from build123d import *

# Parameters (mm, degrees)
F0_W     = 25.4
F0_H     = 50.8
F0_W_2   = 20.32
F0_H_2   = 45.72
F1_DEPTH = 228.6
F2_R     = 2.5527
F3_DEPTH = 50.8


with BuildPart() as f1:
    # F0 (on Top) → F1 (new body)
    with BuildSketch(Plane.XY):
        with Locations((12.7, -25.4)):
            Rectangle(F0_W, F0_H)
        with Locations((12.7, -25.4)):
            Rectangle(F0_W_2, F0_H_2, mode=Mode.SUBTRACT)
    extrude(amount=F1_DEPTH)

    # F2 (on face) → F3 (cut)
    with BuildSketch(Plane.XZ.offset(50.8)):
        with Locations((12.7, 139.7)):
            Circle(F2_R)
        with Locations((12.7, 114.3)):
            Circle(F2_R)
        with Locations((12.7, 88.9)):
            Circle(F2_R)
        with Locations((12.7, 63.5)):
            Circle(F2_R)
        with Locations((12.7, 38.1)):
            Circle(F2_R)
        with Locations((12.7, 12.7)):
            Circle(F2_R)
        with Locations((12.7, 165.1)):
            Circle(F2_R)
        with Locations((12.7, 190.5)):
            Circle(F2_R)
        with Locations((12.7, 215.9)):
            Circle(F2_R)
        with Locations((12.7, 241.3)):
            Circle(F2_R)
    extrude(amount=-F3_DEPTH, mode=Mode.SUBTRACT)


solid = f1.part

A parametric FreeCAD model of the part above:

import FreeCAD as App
import Part
import Sketcher
from FreeCAD import Vector
Q = App.Units.Quantity


def add_polygon(sketch, points):
    """Adds a closed chain of lines whose ends are joined by coincident constraints."""
    first, n = sketch.GeometryCount, len(points)
    for a, b in zip(points, points[1:] + points[:1]):
        sketch.addGeometry(Part.LineSegment(App.Vector(*a, 0), App.Vector(*b, 0)), False)
    for i in range(n):
        sketch.addConstraint(Sketcher.Constraint("Coincident", first + i, 2, first + (i + 1) % n, 1))

doc = App.newDocument("Part")
body = doc.addObject("PartDesign::Body", "Body")

sketch1 = body.newObject("Sketcher::SketchObject", "Sketch")
sketch1.AttachmentSupport = (doc.getObject("XY_Plane"), [""])
sketch1.MapMode = "FlatFace"
add_polygon(sketch1, [(0, 0), (0, -51), (25, -51), (25, 0)])
add_polygon(sketch1, [(23, -48), (3, -48), (3, -3), (23, -3)])
sketch1.addConstraint(Sketcher.Constraint("Vertical", 0))
sketch1.addConstraint(Sketcher.Constraint("Horizontal", 1))
sketch1.addConstraint(Sketcher.Constraint("Vertical", 2))
sketch1.addConstraint(Sketcher.Constraint("Horizontal", 3))
sketch1.addConstraint(Sketcher.Constraint("Horizontal", 4))
sketch1.addConstraint(Sketcher.Constraint("Vertical", 5))
sketch1.addConstraint(Sketcher.Constraint("Horizontal", 6))
sketch1.addConstraint(Sketcher.Constraint("Vertical", 7))
sketch1.addConstraint(Sketcher.Constraint("Coincident", 3, 2, -1, 1))
sketch1.addConstraint(Sketcher.Constraint("DistanceX", 1, 1, 1, 2, Q("1 in")))
sketch1.addConstraint(Sketcher.Constraint("DistanceY", 0, 2, 0, 1, Q("2 in")))
sketch1.addConstraint(Sketcher.Constraint("DistanceX", 4, 2, 4, 1, Q("0.8 in")))
sketch1.addConstraint(Sketcher.Constraint("DistanceY", 5, 1, 5, 2, Q("1.8 in")))
sketch1.addConstraint(Sketcher.Constraint("DistanceX", -1, 1, 4, 2, Q("0.1 in")))
sketch1.addConstraint(Sketcher.Constraint("DistanceY", 4, 2, -1, 1, Q("1.9 in")))
pad1 = body.newObject("PartDesign::Pad", "Pad")
pad1.Profile = sketch1
pad1.Length = Q("9 in")

sketch2 = body.newObject("Sketcher::SketchObject", "Sketch001")
sketch2.AttachmentSupport = (doc.getObject("XZ_Plane"), [""])
sketch2.MapMode = "FlatFace"
sketch2.AttachmentOffset = App.Placement(Vector(0, 0, 2 * 25.4), App.Rotation())
sketch2.addGeometry(Part.Circle(Vector(12.7, 139.7, 0), Vector(0, 0, 1), 2.6), False)
sketch2.addGeometry(Part.Circle(Vector(12.7, 114.3, 0), Vector(0, 0, 1), 2.6), False)
sketch2.addGeometry(Part.Circle(Vector(12.7, 88.9, 0), Vector(0, 0, 1), 2.6), False)
sketch2.addGeometry(Part.Circle(Vector(12.7, 63.5, 0), Vector(0, 0, 1), 2.6), False)
sketch2.addGeometry(Part.Circle(Vector(12.7, 38.1, 0), Vector(0, 0, 1), 2.6), False)
sketch2.addGeometry(Part.Circle(Vector(12.7, 12.7, 0), Vector(0, 0, 1), 2.6), False)
sketch2.addGeometry(Part.Circle(Vector(12.7, 165.1, 0), Vector(0, 0, 1), 2.6), False)
sketch2.addGeometry(Part.Circle(Vector(12.7, 190.5, 0), Vector(0, 0, 1), 2.6), False)
sketch2.addGeometry(Part.Circle(Vector(12.7, 215.9, 0), Vector(0, 0, 1), 2.6), False)
sketch2.addGeometry(Part.Circle(Vector(12.7, 241.3, 0), Vector(0, 0, 1), 2.6), False)
sketch2.addConstraint(Sketcher.Constraint("Equal", 0, 1))
sketch2.addConstraint(Sketcher.Constraint("Equal", 1, 2))
sketch2.addConstraint(Sketcher.Constraint("Equal", 2, 3))
sketch2.addConstraint(Sketcher.Constraint("Equal", 3, 4))
sketch2.addConstraint(Sketcher.Constraint("Equal", 4, 5))
sketch2.addConstraint(Sketcher.Constraint("Equal", 5, 6))
sketch2.addConstraint(Sketcher.Constraint("Equal", 6, 7))
sketch2.addConstraint(Sketcher.Constraint("Equal", 7, 8))
sketch2.addConstraint(Sketcher.Constraint("Equal", 8, 9))
sketch2.addConstraint(Sketcher.Constraint("Vertical", 0, 3, 1, 3))
sketch2.addConstraint(Sketcher.Constraint("Vertical", 1, 3, 2, 3))
sketch2.addConstraint(Sketcher.Constraint("Vertical", 2, 3, 3, 3))
sketch2.addConstraint(Sketcher.Constraint("Vertical", 3, 3, 4, 3))
sketch2.addConstraint(Sketcher.Constraint("Vertical", 4, 3, 5, 3))
sketch2.addConstraint(Sketcher.Constraint("Vertical", 5, 3, 6, 3))
sketch2.addConstraint(Sketcher.Constraint("Vertical", 6, 3, 7, 3))
sketch2.addConstraint(Sketcher.Constraint("Vertical", 7, 3, 8, 3))
sketch2.addConstraint(Sketcher.Constraint("Vertical", 8, 3, 9, 3))
sketch2.addConstraint(Sketcher.Constraint("Diameter", 0, Q("0.201 in")))
sketch2.addConstraint(Sketcher.Constraint("DistanceY", 1, 3, 0, 3, Q("1 in")))
sketch2.addConstraint(Sketcher.Constraint("DistanceY", 2, 3, 1, 3, Q("1 in")))
sketch2.addConstraint(Sketcher.Constraint("DistanceY", 3, 3, 2, 3, Q("1 in")))
sketch2.addConstraint(Sketcher.Constraint("DistanceY", 4, 3, 3, 3, Q("1 in")))
sketch2.addConstraint(Sketcher.Constraint("DistanceY", 5, 3, 4, 3, Q("1 in")))
sketch2.addConstraint(Sketcher.Constraint("DistanceY", 0, 3, 6, 3, Q("1 in")))
sketch2.addConstraint(Sketcher.Constraint("DistanceY", 6, 3, 7, 3, Q("1 in")))
sketch2.addConstraint(Sketcher.Constraint("DistanceY", 7, 3, 8, 3, Q("1 in")))
sketch2.addConstraint(Sketcher.Constraint("DistanceY", 8, 3, 9, 3, Q("1 in")))
sketch2.addConstraint(Sketcher.Constraint("DistanceX", -1, 1, 0, 3, Q("0.5 in")))
sketch2.addConstraint(Sketcher.Constraint("DistanceY", -1, 1, 0, 3, Q("5.5 in")))
pocket1 = body.newObject("PartDesign::Pocket", "Pocket")
pocket1.Profile = sketch2
pocket1.Length = Q("2 in")

doc.recompute()
